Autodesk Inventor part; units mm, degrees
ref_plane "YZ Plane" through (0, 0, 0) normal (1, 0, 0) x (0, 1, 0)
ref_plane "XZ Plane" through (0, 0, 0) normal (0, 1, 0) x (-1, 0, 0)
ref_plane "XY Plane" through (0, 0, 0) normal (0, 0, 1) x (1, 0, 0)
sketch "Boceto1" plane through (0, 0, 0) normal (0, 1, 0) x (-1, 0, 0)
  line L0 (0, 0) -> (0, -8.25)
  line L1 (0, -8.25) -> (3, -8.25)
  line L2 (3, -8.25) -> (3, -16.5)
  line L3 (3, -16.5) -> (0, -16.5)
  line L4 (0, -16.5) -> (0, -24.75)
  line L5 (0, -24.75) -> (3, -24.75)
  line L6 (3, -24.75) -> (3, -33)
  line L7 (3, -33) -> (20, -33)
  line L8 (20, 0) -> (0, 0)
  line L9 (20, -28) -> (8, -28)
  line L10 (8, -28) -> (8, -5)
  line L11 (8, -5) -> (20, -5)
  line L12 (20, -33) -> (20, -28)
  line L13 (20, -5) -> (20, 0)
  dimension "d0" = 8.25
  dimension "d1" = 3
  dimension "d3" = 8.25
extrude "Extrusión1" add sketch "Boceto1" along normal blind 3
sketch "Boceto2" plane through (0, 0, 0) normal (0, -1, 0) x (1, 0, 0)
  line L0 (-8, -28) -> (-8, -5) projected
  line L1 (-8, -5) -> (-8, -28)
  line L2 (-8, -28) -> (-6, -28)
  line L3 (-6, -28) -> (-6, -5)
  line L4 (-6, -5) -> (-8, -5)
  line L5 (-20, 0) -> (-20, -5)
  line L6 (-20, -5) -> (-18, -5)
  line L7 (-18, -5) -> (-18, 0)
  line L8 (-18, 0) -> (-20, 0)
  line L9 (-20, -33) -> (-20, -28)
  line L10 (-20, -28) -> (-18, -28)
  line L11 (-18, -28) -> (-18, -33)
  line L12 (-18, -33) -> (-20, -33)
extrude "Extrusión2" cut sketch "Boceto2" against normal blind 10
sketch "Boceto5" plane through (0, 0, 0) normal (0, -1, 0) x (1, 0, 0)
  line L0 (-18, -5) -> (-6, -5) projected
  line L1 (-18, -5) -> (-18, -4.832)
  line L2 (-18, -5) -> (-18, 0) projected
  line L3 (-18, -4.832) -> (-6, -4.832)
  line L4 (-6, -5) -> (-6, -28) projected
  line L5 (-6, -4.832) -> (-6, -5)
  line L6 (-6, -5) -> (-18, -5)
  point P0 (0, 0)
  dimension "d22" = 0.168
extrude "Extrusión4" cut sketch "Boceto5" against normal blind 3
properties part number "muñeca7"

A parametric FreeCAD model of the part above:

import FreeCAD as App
import Part
import Sketcher
from FreeCAD import Vector


def add_polygon(sketch, points):
    """Adds a closed chain of lines whose ends are joined by coincident constraints."""
    first, n = sketch.GeometryCount, len(points)
    for a, b in zip(points, points[1:] + points[:1]):
        sketch.addGeometry(Part.LineSegment(App.Vector(*a, 0), App.Vector(*b, 0)), False)
    for i in range(n):
        sketch.addConstraint(Sketcher.Constraint("Coincident", first + i, 2, first + (i + 1) % n, 1))

doc = App.newDocument("Part")
params = doc.addObject("Spreadsheet::Sheet", "Params")
for row, (alias, value) in enumerate([
    ("sketch1_width", "3 mm"),
    ("sketch1_height", "8.25 mm"),
    ("sketch1_width2", "20 mm"),
    ("sketch1_width3", "12 mm"),
    ("sketch1_height2", "5 mm"),
    ("pad1_length", "3 mm"),
    ("sketch2_width", "2 mm"),
    ("sketch2_height", "23 mm"),
    ("sketch2_height2", "5 mm"),
    ("pocket1_length", "10 mm"),
    ("sketch3_width", "12 mm"),
    ("pocket2_length", "3 mm"),
], start=1):
    params.set(f"A{row}", alias)
    params.set(f"B{row}", "=" + value)
    params.setAlias(f"B{row}", alias)

body = doc.addObject("PartDesign::Body", "Body")

# Sketch on XZ plane
sketch1 = body.newObject("Sketcher::SketchObject", "Sketch")
sketch1.AttachmentSupport = (doc.getObject("XZ_Plane"), [""])
sketch1.MapMode = "FlatFace"
add_polygon(sketch1, [(-20, 0), (0, 0), (0, -8.2), (-3, -8.2), (-3, -16.5), (0, -16.5), (0, -24.8), (-3, -24.8), (-3, -33), (-20, -33), (-20, -28), (-8, -28), (-8, -5), (-20, -5)])  # lines 0-13
sketch1.addConstraint([
    Sketcher.Constraint("Horizontal", 0),
    Sketcher.Constraint("Vertical", 1),
    Sketcher.Constraint("Horizontal", 2),
    Sketcher.Constraint("Vertical", 3),
    Sketcher.Constraint("Horizontal", 4),
    Sketcher.Constraint("Vertical", 5),
    Sketcher.Constraint("Horizontal", 6),
    Sketcher.Constraint("Vertical", 7),
    Sketcher.Constraint("Horizontal", 8),
    Sketcher.Constraint("Vertical", 9),
    Sketcher.Constraint("Horizontal", 10),
    Sketcher.Constraint("Vertical", 11),
    Sketcher.Constraint("Horizontal", 12),
    Sketcher.Constraint("Vertical", 13),
    Sketcher.Constraint("Coincident", 0, 2, -1, 1),
    Sketcher.Constraint("PointOnObject", 4, 2, -2),
    Sketcher.Constraint("Vertical", 3, 2, 6, 2),
    Sketcher.Constraint("Vertical", 9, 2, 12, 2),
    Sketcher.Constraint("Equal", 1, 3),
    Sketcher.Constraint("Equal", 3, 5),
    Sketcher.Constraint("Equal", 5, 7),
    Sketcher.Constraint("Equal", 9, 13),
    Sketcher.Constraint("DistanceX", 2, 2, 2, 1, 3.0),
    Sketcher.Constraint("DistanceY", 1, 2, 1, 1, 8.25),
    Sketcher.Constraint("DistanceX", 0, 1, 0, 2, 20.0),
    Sketcher.Constraint("DistanceX", 10, 1, 10, 2, 12.0),
    Sketcher.Constraint("DistanceY", 9, 1, 9, 2, 5.0),
])
sketch1.setExpression("Constraints[36]", "Params.sketch1_width")
sketch1.setExpression("Constraints[37]", "Params.sketch1_height")
sketch1.setExpression("Constraints[38]", "Params.sketch1_width2")
sketch1.setExpression("Constraints[39]", "Params.sketch1_width3")
sketch1.setExpression("Constraints[40]", "Params.sketch1_height2")
pad1 = body.newObject("PartDesign::Pad", "Pad")
pad1.Profile = sketch1
pad1.setExpression("Length", "Params.pad1_length")
pad1.Reversed = True

# Sketch on XZ plane
sketch2 = body.newObject("Sketcher::SketchObject", "Sketch001")
sketch2.AttachmentSupport = (doc.getObject("XZ_Plane"), [""])
sketch2.MapMode = "FlatFace"
add_polygon(sketch2, [(-8, -5), (-8, -28), (-6, -28), (-6, -5)])  # lines 0-3
add_polygon(sketch2, [(-18, 0), (-20, 0), (-20, -5), (-18, -5)])  # lines 4-7
add_polygon(sketch2, [(-20, -28), (-20, -33), (-18, -33), (-18, -28)])  # lines 8-11
sketch2.addConstraint([
    Sketcher.Constraint("Vertical", 0),
    Sketcher.Constraint("Horizontal", 1),
    Sketcher.Constraint("Vertical", 2),
    Sketcher.Constraint("Horizontal", 3),
    Sketcher.Constraint("Horizontal", 4),
    Sketcher.Constraint("Vertical", 5),
    Sketcher.Constraint("Horizontal", 6),
    Sketcher.Constraint("Vertical", 7),
    Sketcher.Constraint("Vertical", 8),
    Sketcher.Constraint("Horizontal", 9),
    Sketcher.Constraint("Vertical", 10),
    Sketcher.Constraint("Horizontal", 11),
    Sketcher.Constraint("PointOnObject", 4, 2, -1),
    Sketcher.Constraint("Horizontal", 3, 2, 5, 2),
    Sketcher.Constraint("Horizontal", 1, 2, 10, 2),
    Sketcher.Constraint("Vertical", 5, 2, 8, 2),
    Sketcher.Constraint("Vertical", 7, 2, 9, 2),
    Sketcher.Constraint("Equal", 3, 4),
    Sketcher.Constraint("Equal", 7, 8),
    Sketcher.Constraint("DistanceX", 1, 1, 1, 2, 2.0),
    Sketcher.Constraint("DistanceY", 0, 2, 0, 1, 23.0),
    Sketcher.Constraint("DistanceY", 5, 2, 5, 1, 5.0),
    Sketcher.Constraint("DistanceX", 0, 2, -1, 1, 8.0),
    Sketcher.Constraint("DistanceX", 4, 2, -1, 1, 20.0),
])
sketch2.setExpression("Constraints[31]", "Params.sketch2_width")
sketch2.setExpression("Constraints[32]", "Params.sketch2_height")
sketch2.setExpression("Constraints[33]", "Params.sketch2_height2")
pocket1 = body.newObject("PartDesign::Pocket", "Pocket")
pocket1.Profile = sketch2
pocket1.setExpression("Length", "Params.pocket1_length")

# Sketch on XZ plane
sketch3 = body.newObject("Sketcher::SketchObject", "Sketch002")
sketch3.AttachmentSupport = (doc.getObject("XZ_Plane"), [""])
sketch3.MapMode = "FlatFace"
add_polygon(sketch3, [(-18, -4.83), (-18, -5), (-6, -5), (-6, -4.83)])  # lines 0-3
sketch3.addConstraint([
    Sketcher.Constraint("Vertical", 0),
    Sketcher.Constraint("Horizontal", 1),
    Sketcher.Constraint("Vertical", 2),
    Sketcher.Constraint("Horizontal", 3),
    Sketcher.Constraint("DistanceX", 1, 1, 1, 2, 12.0),
    Sketcher.Constraint("DistanceY", 0, 2, 0, 1, 0.168),
    Sketcher.Constraint("DistanceX", 0, 2, -1, 1, 18.0),
    Sketcher.Constraint("DistanceY", 0, 2, -1, 1, 5.0),
])
sketch3.setExpression("Constraints[8]", "Params.sketch3_width")
pocket2 = body.newObject("PartDesign::Pocket", "Pocket001")
pocket2.Profile = sketch3
pocket2.setExpression("Length", "Params.pocket2_length")

doc.recompute()
